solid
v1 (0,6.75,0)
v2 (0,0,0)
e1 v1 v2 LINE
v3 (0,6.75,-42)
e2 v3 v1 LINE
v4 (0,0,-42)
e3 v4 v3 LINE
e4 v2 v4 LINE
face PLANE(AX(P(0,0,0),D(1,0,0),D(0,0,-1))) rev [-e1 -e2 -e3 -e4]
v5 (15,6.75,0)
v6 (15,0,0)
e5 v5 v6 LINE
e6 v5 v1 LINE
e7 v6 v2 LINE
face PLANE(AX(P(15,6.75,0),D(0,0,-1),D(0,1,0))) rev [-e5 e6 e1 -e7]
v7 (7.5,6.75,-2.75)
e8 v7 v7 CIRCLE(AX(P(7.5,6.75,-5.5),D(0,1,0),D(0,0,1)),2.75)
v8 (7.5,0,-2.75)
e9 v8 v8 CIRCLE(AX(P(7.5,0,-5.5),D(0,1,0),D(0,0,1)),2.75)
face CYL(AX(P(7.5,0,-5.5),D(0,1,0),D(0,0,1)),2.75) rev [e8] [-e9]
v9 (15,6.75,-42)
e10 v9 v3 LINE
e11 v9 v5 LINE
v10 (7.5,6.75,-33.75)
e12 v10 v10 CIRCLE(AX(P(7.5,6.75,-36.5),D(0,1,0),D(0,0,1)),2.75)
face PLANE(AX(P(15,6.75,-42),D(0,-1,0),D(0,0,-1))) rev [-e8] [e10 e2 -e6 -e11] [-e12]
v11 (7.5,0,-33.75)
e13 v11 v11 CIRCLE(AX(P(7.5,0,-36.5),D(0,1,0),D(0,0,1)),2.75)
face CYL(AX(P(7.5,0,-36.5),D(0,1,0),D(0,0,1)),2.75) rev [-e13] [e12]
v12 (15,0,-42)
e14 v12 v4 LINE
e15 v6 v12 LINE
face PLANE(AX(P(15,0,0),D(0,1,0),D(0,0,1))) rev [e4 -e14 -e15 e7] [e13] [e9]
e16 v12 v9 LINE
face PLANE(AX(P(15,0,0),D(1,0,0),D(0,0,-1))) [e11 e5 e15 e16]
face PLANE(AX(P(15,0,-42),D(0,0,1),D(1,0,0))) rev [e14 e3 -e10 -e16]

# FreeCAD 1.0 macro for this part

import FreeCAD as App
import Part
import Sketcher

V = App.Vector

doc = App.newDocument("Part")
body = doc.addObject("PartDesign::Body", "Body")

# Sketch on YZ plane
sketch1 = doc.addObject("Sketcher::SketchObject", "Sketch")
body.addObject(sketch1)
sketch1.AttachmentSupport = (doc.YZ_Plane, [""])
sketch1.MapMode = "FlatFace"
sketch1.addGeometry([
    Part.LineSegment(V(6.75, 0, 0), V(0, 0, 0)),
    Part.LineSegment(V(0, 0, 0), V(0, -42, 0)),
    Part.LineSegment(V(0, -42, 0), V(6.75, -42, 0)),
    Part.LineSegment(V(6.75, -42, 0), V(6.75, 0, 0)),
], False)
sketch1.addConstraint([
    Sketcher.Constraint("Coincident", 0, 2, 1, 1),
    Sketcher.Constraint("Coincident", 1, 2, 2, 1),
    Sketcher.Constraint("Coincident", 2, 2, 3, 1),
    Sketcher.Constraint("Coincident", 3, 2, 0, 1),
    Sketcher.Constraint("Horizontal", 0),
    Sketcher.Constraint("Vertical", 1),
    Sketcher.Constraint("Horizontal", 2),
    Sketcher.Constraint("Vertical", 3),
    Sketcher.Constraint("Coincident", 0, 2, -1, 1),
    Sketcher.Constraint("DistanceY", 1, 2, 1, 1, 42.0),
    Sketcher.Constraint("DistanceX", 0, 2, 0, 1, 6.75),
])
pad1 = doc.addObject("PartDesign::Pad", "Pad")
body.addObject(pad1)
pad1.Profile = sketch1
pad1.Length = 15

# Sketch on XZ plane
sketch2 = doc.addObject("Sketcher::SketchObject", "Sketch001")
body.addObject(sketch2)
sketch2.AttachmentSupport = (doc.XZ_Plane, [""])
sketch2.MapMode = "FlatFace"
sketch2.AttachmentOffset = App.Placement(V(0, 0, -6.75), App.Rotation())
sketch2.addGeometry([
    Part.Circle(V(7.5, -5.5, 0), V(0, 0, 1), 2.75),
    Part.Circle(V(7.5, -36.5, 0), V(0, 0, 1), 2.75),
], False)
sketch2.addConstraint([
    Sketcher.Constraint("Equal", 0, 1),
    Sketcher.Constraint("Vertical", 0, 3, 1, 3),
    Sketcher.Constraint("Diameter", 0, 5.5),
    Sketcher.Constraint("DistanceY", 1, 3, 0, 3, 31.0),
    Sketcher.Constraint("DistanceX", -1, 1, 0, 3, 7.5),
    Sketcher.Constraint("DistanceY", 0, 3, -1, 1, 5.5),
])
pocket1 = doc.addObject("PartDesign::Pocket", "Pocket")
body.addObject(pocket1)
pocket1.Profile = sketch2
pocket1.Type = "ThroughAll"
pocket1.Reversed = True

doc.recompute()
